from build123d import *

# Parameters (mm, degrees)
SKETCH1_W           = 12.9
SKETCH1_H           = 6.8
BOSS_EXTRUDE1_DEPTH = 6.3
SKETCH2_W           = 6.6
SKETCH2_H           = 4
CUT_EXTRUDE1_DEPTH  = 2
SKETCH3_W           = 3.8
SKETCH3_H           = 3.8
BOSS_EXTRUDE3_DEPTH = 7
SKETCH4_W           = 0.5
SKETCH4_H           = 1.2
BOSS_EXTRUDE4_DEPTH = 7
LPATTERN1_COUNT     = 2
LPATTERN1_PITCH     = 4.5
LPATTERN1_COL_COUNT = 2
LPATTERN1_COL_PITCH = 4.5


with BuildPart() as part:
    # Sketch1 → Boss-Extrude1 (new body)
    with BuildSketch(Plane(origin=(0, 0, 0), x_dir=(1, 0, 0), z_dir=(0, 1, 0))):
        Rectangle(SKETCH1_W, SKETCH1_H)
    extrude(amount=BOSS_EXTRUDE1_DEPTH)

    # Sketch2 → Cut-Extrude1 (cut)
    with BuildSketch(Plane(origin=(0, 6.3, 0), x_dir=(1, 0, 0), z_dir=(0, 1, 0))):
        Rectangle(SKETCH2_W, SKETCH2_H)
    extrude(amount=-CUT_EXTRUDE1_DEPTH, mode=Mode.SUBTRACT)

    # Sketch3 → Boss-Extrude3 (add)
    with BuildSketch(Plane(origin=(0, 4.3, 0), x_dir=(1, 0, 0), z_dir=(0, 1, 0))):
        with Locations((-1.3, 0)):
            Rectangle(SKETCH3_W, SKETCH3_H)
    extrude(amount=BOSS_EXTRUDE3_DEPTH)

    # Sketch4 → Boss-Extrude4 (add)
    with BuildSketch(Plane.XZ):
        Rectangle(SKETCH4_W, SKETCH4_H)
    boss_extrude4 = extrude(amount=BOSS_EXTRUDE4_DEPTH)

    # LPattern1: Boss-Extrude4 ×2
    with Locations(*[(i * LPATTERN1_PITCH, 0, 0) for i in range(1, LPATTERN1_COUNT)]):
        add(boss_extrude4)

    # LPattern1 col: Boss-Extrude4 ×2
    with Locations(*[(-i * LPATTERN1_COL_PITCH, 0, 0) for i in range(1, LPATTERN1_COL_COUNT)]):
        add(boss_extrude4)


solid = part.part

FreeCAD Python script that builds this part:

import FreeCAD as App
import Part
import Sketcher
from FreeCAD import Vector
Q = App.Units.Quantity


def add_polygon(sketch, points):
    """Adds a closed chain of lines whose ends are joined by coincident constraints."""
    first, n = sketch.GeometryCount, len(points)
    for a, b in zip(points, points[1:] + points[:1]):
        sketch.addGeometry(Part.LineSegment(App.Vector(*a, 0), App.Vector(*b, 0)), False)
    for i in range(n):
        sketch.addConstraint(Sketcher.Constraint("Coincident", first + i, 2, first + (i + 1) % n, 1))

doc = App.newDocument("Part")
body = doc.addObject("PartDesign::Body", "Body")

# Sketch on XZ plane
sketch1 = doc.addObject("Sketcher::SketchObject", "Sketch")
body.addObject(sketch1)
sketch1.AttachmentSupport = (doc.XZ_Plane, [""])
sketch1.MapMode = "FlatFace"
add_polygon(sketch1, [(-6.45, -3.4), (-6.45, 3.4), (6.45, 3.4), (6.45, -3.4)])  # lines 0-3
sketch1.addConstraint(Sketcher.Constraint("Vertical", 0))
sketch1.addConstraint(Sketcher.Constraint("Horizontal", 1))
sketch1.addConstraint(Sketcher.Constraint("Vertical", 2))
sketch1.addConstraint(Sketcher.Constraint("Horizontal", 3))
sketch1.addConstraint(Sketcher.Constraint("Symmetric", 0, 2, 2, 2, -1, 1))
sketch1.addConstraint(Sketcher.Constraint("DistanceX", 1, 1, 1, 2, Q("12.9 mm")))
sketch1.addConstraint(Sketcher.Constraint("DistanceY", 0, 1, 0, 2, Q("6.8 mm")))
pad1 = doc.addObject("PartDesign::Pad", "Pad")
body.addObject(pad1)
pad1.Profile = sketch1
pad1.Length = 6.3
pad1.Reversed = True

# Sketch on XZ plane
sketch2 = doc.addObject("Sketcher::SketchObject", "Sketch001")
body.addObject(sketch2)
sketch2.AttachmentSupport = (doc.XZ_Plane, [""])
sketch2.MapMode = "FlatFace"
sketch2.AttachmentOffset = App.Placement(Vector(0, 0, -6.3), App.Rotation())
add_polygon(sketch2, [(-3.3, -2), (-3.3, 2), (3.3, 2), (3.3, -2)])  # lines 0-3
sketch2.addConstraint(Sketcher.Constraint("Vertical", 0))
sketch2.addConstraint(Sketcher.Constraint("Horizontal", 1))
sketch2.addConstraint(Sketcher.Constraint("Vertical", 2))
sketch2.addConstraint(Sketcher.Constraint("Horizontal", 3))
sketch2.addConstraint(Sketcher.Constraint("Symmetric", 0, 2, 2, 2, -1, 1))
sketch2.addConstraint(Sketcher.Constraint("DistanceY", 0, 1, 0, 2, Q("4 mm")))
sketch2.addConstraint(Sketcher.Constraint("DistanceX", 1, 1, 1, 2, Q("6.6 mm")))
pocket1 = doc.addObject("PartDesign::Pocket", "Pocket")
body.addObject(pocket1)
pocket1.Profile = sketch2
pocket1.Length = 2
pocket1.Reversed = True

# Sketch on XZ plane
sketch3 = doc.addObject("Sketcher::SketchObject", "Sketch002")
body.addObject(sketch3)
sketch3.AttachmentSupport = (doc.XZ_Plane, [""])
sketch3.MapMode = "FlatFace"
sketch3.AttachmentOffset = App.Placement(Vector(0, 0, -4.3), App.Rotation())
add_polygon(sketch3, [(-3.2, -1.9), (-3.2, 1.9), (0.6, 1.9), (0.6, -1.9)])  # lines 0-3
sketch3.addConstraint(Sketcher.Constraint("Vertical", 0))
sketch3.addConstraint(Sketcher.Constraint("Horizontal", 1))
sketch3.addConstraint(Sketcher.Constraint("Vertical", 2))
sketch3.addConstraint(Sketcher.Constraint("Horizontal", 3))
sketch3.addConstraint(Sketcher.Constraint("Equal", 3, 0))
sketch3.addConstraint(Sketcher.Constraint("DistanceX", 1, 1, 1, 2, Q("3.8 mm")))
sketch3.addConstraint(Sketcher.Constraint("DistanceX", 0, 2, -1, 1, Q("3.2 mm")))
sketch3.addConstraint(Sketcher.Constraint("DistanceY", -1, 1, 0, 2, Q("1.9 mm")))
pad2 = doc.addObject("PartDesign::Pad", "Pad001")
body.addObject(pad2)
pad2.Profile = sketch3
pad2.Length = 7
pad2.Reversed = True

# Sketch on XZ plane
sketch4 = doc.addObject("Sketcher::SketchObject", "Sketch003")
body.addObject(sketch4)
sketch4.AttachmentSupport = (doc.XZ_Plane, [""])
sketch4.MapMode = "FlatFace"
add_polygon(sketch4, [(-0.25, 0.6), (-0.25, -0.6), (0.25, -0.6), (0.25, 0.6)])  # lines 0-3
sketch4.addConstraint(Sketcher.Constraint("Vertical", 0))
sketch4.addConstraint(Sketcher.Constraint("Horizontal", 1))
sketch4.addConstraint(Sketcher.Constraint("Vertical", 2))
sketch4.addConstraint(Sketcher.Constraint("Horizontal", 3))
sketch4.addConstraint(Sketcher.Constraint("Symmetric", 0, 2, 2, 2, -1, 1))
sketch4.addConstraint(Sketcher.Constraint("DistanceX", 1, 1, 1, 2, Q("0.5 mm")))
sketch4.addConstraint(Sketcher.Constraint("DistanceY", 0, 2, 0, 1, Q("1.2 mm")))
pad3 = doc.addObject("PartDesign::Pad", "Pad002")
body.addObject(pad3)
pad3.Profile = sketch4
pad3.Length = 7
doc.recompute()

linearpattern = doc.addObject("PartDesign::LinearPattern", "LinearPattern")
body.addObject(linearpattern)
linearpattern.Originals = [pad3]
linearpattern.Direction = (doc.X_Axis, [""])
linearpattern.Mode = "offset"
linearpattern.Offset = 4.5
linearpattern.Occurrences = 2
body.Tip = linearpattern
doc.recompute()

linearpattern2 = doc.addObject("PartDesign::LinearPattern", "LinearPattern001")
body.addObject(linearpattern2)
linearpattern2.Originals = [pad3]
linearpattern2.Direction = (doc.X_Axis, [""])
linearpattern2.Mode = "offset"
linearpattern2.Offset = 4.5
linearpattern2.Occurrences = 2
linearpattern2.Reversed = True
body.Tip = linearpattern2

doc.recompute()
